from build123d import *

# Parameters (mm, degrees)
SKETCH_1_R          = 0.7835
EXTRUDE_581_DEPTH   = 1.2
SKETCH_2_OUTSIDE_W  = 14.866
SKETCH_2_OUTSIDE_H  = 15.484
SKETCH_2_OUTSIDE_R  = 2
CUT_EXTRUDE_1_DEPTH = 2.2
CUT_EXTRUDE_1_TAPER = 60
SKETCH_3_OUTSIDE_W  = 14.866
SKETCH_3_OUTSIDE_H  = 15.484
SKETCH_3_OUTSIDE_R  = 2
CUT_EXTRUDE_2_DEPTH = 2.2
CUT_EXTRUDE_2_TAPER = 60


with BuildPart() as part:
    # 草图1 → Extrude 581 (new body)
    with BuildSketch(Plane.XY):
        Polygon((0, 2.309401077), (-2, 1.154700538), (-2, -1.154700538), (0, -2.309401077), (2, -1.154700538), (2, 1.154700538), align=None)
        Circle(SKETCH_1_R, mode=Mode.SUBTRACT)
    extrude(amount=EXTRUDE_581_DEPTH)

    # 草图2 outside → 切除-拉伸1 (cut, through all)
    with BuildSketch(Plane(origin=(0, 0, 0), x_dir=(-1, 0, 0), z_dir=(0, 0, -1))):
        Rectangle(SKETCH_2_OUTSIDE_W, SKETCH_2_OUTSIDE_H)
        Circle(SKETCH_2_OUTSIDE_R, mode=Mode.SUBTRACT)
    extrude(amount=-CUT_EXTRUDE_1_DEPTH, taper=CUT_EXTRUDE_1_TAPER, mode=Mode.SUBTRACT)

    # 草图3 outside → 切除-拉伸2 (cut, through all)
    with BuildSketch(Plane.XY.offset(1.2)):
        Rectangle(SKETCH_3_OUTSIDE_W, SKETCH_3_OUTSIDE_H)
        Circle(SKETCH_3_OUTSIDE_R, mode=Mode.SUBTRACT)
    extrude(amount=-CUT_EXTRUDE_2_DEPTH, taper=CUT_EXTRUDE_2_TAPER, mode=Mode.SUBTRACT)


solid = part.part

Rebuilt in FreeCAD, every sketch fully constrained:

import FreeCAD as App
import Part
import Sketcher

V = App.Vector
Q = App.Units.Quantity

doc = App.newDocument("Part")
params = doc.addObject("Spreadsheet::Sheet", "Params")
for row, (alias, value) in enumerate([
    ("pad1_length", "1.2 mm"),
    ("sketch2_diameter", "4 mm"),
    ("pocket1_length", "2.2 mm"),
    ("pocket1_taper", "60 deg"),
    ("sketch3_diameter", "4 mm"),
    ("pocket2_length", "2.2 mm"),
    ("pocket2_taper", "60 deg"),
], start=1):
    params.set(f"A{row}", alias)
    params.set(f"B{row}", "=" + value)
    params.setAlias(f"B{row}", alias)

body = doc.addObject("PartDesign::Body", "Body")

# Sketch on XY plane
sketch1 = doc.addObject("Sketcher::SketchObject", "Sketch")
body.addObject(sketch1)
sketch1.AttachmentSupport = (doc.XY_Plane, [""])
sketch1.MapMode = "FlatFace"
sketch1.addGeometry(Part.LineSegment(V(0, 2.3, 0), V(-2, 1.2, 0)), False)
sketch1.addGeometry(Part.LineSegment(V(-2, 1.2, 0), V(-2, -1.2, 0)), False)
sketch1.addGeometry(Part.LineSegment(V(-2, -1.2, 0), V(0, -2.3, 0)), False)
sketch1.addGeometry(Part.LineSegment(V(0, -2.3, 0), V(2, -1.2, 0)), False)
sketch1.addGeometry(Part.LineSegment(V(2, -1.2, 0), V(2, 1.2, 0)), False)
sketch1.addGeometry(Part.LineSegment(V(2, 1.2, 0), V(0, 2.3, 0)), False)
sketch1.addGeometry(Part.Circle(V(0, 0, 0), V(0, 0, 1), 0.8), False)
sketch1.addConstraint(Sketcher.Constraint("Coincident", 0, 2, 1, 1))
sketch1.addConstraint(Sketcher.Constraint("Coincident", 1, 2, 2, 1))
sketch1.addConstraint(Sketcher.Constraint("Coincident", 2, 2, 3, 1))
sketch1.addConstraint(Sketcher.Constraint("Coincident", 3, 2, 4, 1))
sketch1.addConstraint(Sketcher.Constraint("Coincident", 4, 2, 5, 1))
sketch1.addConstraint(Sketcher.Constraint("Coincident", 5, 2, 0, 1))
sketch1.addConstraint(Sketcher.Constraint("Vertical", 1))
sketch1.addConstraint(Sketcher.Constraint("Vertical", 4))
sketch1.addConstraint(Sketcher.Constraint("Coincident", 6, 3, -1, 1))
sketch1.addConstraint(Sketcher.Constraint("Symmetric", 0, 2, 3, 2, -1, 1))
sketch1.addConstraint(Sketcher.Constraint("Symmetric", 2, 2, 5, 2, -1, 1))
sketch1.addConstraint(Sketcher.Constraint("PointOnObject", 2, 2, -2))
sketch1.addConstraint(Sketcher.Constraint("Parallel", 2, 5))
sketch1.addConstraint(Sketcher.Constraint("Horizontal", 1, 2, 3, 2))
sketch1.addConstraint(Sketcher.Constraint("Angle", 0, Q("-150 deg")))
sketch1.addConstraint(Sketcher.Constraint("Diameter", 6, 1.567))
sketch1.addConstraint(Sketcher.Constraint("DistanceX", 0, 2, -1, 1, 2.0))
sketch1.addConstraint(Sketcher.Constraint("DistanceY", 1, 2, 1, 1, 2.309401))
pad1 = doc.addObject("PartDesign::Pad", "Pad")
body.addObject(pad1)
pad1.Profile = sketch1
pad1.setExpression("Length", "Params.pad1_length")

# Sketch on XY plane
sketch2 = doc.addObject("Sketcher::SketchObject", "Sketch001")
body.addObject(sketch2)
sketch2.AttachmentSupport = (doc.XY_Plane, [""])
sketch2.MapMode = "FlatFace"
sketch2.addGeometry(Part.LineSegment(V(7.4, 7.7, 0), V(7.4, -7.7, 0)), False)
sketch2.addGeometry(Part.LineSegment(V(7.4, -7.7, 0), V(-7.4, -7.7, 0)), False)
sketch2.addGeometry(Part.LineSegment(V(-7.4, -7.7, 0), V(-7.4, 7.7, 0)), False)
sketch2.addGeometry(Part.LineSegment(V(-7.4, 7.7, 0), V(7.4, 7.7, 0)), False)
sketch2.addGeometry(Part.Circle(V(0, 0, 0), V(0, 0, 1), 2), False)
sketch2.addConstraint(Sketcher.Constraint("Coincident", 0, 2, 1, 1))
sketch2.addConstraint(Sketcher.Constraint("Coincident", 1, 2, 2, 1))
sketch2.addConstraint(Sketcher.Constraint("Coincident", 2, 2, 3, 1))
sketch2.addConstraint(Sketcher.Constraint("Coincident", 3, 2, 0, 1))
sketch2.addConstraint(Sketcher.Constraint("Vertical", 0))
sketch2.addConstraint(Sketcher.Constraint("Horizontal", 1))
sketch2.addConstraint(Sketcher.Constraint("Vertical", 2))
sketch2.addConstraint(Sketcher.Constraint("Horizontal", 3))
sketch2.addConstraint(Sketcher.Constraint("Coincident", 4, 3, -1, 1))
sketch2.addConstraint(Sketcher.Constraint("Symmetric", 0, 2, 2, 2, -1, 1))
sketch2.addConstraint(Sketcher.Constraint("Diameter", 4, 4.0))
sketch2.addConstraint(Sketcher.Constraint("DistanceX", 1, 2, 1, 1, 14.866))
sketch2.addConstraint(Sketcher.Constraint("DistanceY", 0, 2, 0, 1, 15.484))
sketch2.setExpression("Constraints[10]", "Params.sketch2_diameter")
pocket1 = doc.addObject("PartDesign::Pocket", "Pocket")
body.addObject(pocket1)
pocket1.Profile = sketch2
pocket1.setExpression("Length", "Params.pocket1_length")
pocket1.Reversed = True
pocket1.setExpression("TaperAngle", "Params.pocket1_taper")

# Sketch on XY plane
sketch3 = doc.addObject("Sketcher::SketchObject", "Sketch002")
body.addObject(sketch3)
sketch3.AttachmentSupport = (doc.XY_Plane, [""])
sketch3.MapMode = "FlatFace"
sketch3.AttachmentOffset = App.Placement(V(0, 0, 1.2), App.Rotation())
sketch3.addGeometry(Part.LineSegment(V(-7.4, 7.7, 0), V(-7.4, -7.7, 0)), False)
sketch3.addGeometry(Part.LineSegment(V(-7.4, -7.7, 0), V(7.4, -7.7, 0)), False)
sketch3.addGeometry(Part.LineSegment(V(7.4, -7.7, 0), V(7.4, 7.7, 0)), False)
sketch3.addGeometry(Part.LineSegment(V(7.4, 7.7, 0), V(-7.4, 7.7, 0)), False)
sketch3.addGeometry(Part.Circle(V(0, 0, 0), V(0, 0, 1), 2), False)
sketch3.addConstraint(Sketcher.Constraint("Coincident", 0, 2, 1, 1))
sketch3.addConstraint(Sketcher.Constraint("Coincident", 1, 2, 2, 1))
sketch3.addConstraint(Sketcher.Constraint("Coincident", 2, 2, 3, 1))
sketch3.addConstraint(Sketcher.Constraint("Coincident", 3, 2, 0, 1))
sketch3.addConstraint(Sketcher.Constraint("Vertical", 0))
sketch3.addConstraint(Sketcher.Constraint("Horizontal", 1))
sketch3.addConstraint(Sketcher.Constraint("Vertical", 2))
sketch3.addConstraint(Sketcher.Constraint("Horizontal", 3))
sketch3.addConstraint(Sketcher.Constraint("Coincident", 4, 3, -1, 1))
sketch3.addConstraint(Sketcher.Constraint("Symmetric", 0, 2, 2, 2, -1, 1))
sketch3.addConstraint(Sketcher.Constraint("Diameter", 4, 4.0))
sketch3.addConstraint(Sketcher.Constraint("DistanceX", 1, 1, 1, 2, 14.866))
sketch3.addConstraint(Sketcher.Constraint("DistanceY", 0, 2, 0, 1, 15.484))
sketch3.setExpression("Constraints[10]", "Params.sketch3_diameter")
pocket2 = doc.addObject("PartDesign::Pocket", "Pocket001")
body.addObject(pocket2)
pocket2.Profile = sketch3
pocket2.setExpression("Length", "Params.pocket2_length")
pocket2.setExpression("TaperAngle", "Params.pocket2_taper")

doc.recompute()
